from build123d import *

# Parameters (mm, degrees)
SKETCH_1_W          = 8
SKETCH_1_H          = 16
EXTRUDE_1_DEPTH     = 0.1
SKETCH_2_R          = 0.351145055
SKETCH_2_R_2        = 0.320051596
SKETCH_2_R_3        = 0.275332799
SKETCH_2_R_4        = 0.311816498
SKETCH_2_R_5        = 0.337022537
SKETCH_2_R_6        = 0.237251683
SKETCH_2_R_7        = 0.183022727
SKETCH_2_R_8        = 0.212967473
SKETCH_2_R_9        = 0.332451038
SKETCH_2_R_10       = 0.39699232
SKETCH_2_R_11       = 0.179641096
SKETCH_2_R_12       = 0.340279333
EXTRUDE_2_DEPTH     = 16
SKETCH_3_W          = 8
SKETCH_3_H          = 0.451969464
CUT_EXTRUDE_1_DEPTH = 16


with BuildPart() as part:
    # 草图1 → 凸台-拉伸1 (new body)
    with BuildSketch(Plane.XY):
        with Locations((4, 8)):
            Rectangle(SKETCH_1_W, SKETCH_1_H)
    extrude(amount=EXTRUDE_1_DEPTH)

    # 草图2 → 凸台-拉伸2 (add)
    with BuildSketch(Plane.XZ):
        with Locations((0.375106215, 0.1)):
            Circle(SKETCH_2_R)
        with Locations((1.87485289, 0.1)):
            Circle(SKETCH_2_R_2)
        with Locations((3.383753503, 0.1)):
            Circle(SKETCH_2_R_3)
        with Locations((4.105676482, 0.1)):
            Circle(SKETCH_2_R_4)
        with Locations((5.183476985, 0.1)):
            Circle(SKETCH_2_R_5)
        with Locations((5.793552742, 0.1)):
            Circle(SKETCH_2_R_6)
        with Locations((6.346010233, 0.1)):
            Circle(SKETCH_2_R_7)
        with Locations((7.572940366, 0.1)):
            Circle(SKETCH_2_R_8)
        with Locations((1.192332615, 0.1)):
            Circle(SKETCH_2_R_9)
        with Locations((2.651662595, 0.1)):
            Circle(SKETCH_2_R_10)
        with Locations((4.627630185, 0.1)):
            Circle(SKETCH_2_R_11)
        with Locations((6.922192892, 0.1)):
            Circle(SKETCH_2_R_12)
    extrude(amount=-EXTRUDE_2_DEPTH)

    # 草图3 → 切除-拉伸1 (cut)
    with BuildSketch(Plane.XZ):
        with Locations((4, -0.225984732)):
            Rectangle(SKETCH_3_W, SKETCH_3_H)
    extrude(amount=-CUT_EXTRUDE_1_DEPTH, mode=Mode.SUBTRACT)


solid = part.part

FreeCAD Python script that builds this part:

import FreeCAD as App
import Part
import Sketcher

V = App.Vector
Q = App.Units.Quantity

doc = App.newDocument("Part")
params = doc.addObject("Spreadsheet::Sheet", "Params")
for row, (alias, value) in enumerate([
    ("sketch1_width", "8 mm"),
    ("sketch1_height", "16 mm"),
    ("pad1_length", "0.1 mm"),
    ("pad2_length", "16 mm"),
    ("sketch3_width", "8 mm"),
    ("pocket1_length", "16 mm"),
], start=1):
    params.set(f"A{row}", alias)
    params.set(f"B{row}", "=" + value)
    params.setAlias(f"B{row}", alias)

body = doc.addObject("PartDesign::Body", "Body")

# Sketch on XY plane
sketch1 = body.newObject("Sketcher::SketchObject", "Sketch")
sketch1.AttachmentSupport = (doc.getObject("XY_Plane"), [""])
sketch1.MapMode = "FlatFace"
sketch1.addGeometry([
    Part.LineSegment(V(0, 16, 0), V(0, 0, 0)),
    Part.LineSegment(V(0, 0, 0), V(8, 0, 0)),
    Part.LineSegment(V(8, 0, 0), V(8, 16, 0)),
    Part.LineSegment(V(8, 16, 0), V(0, 16, 0)),
], False)
sketch1.addConstraint([
    Sketcher.Constraint("Coincident", 0, 2, 1, 1),
    Sketcher.Constraint("Coincident", 1, 2, 2, 1),
    Sketcher.Constraint("Coincident", 2, 2, 3, 1),
    Sketcher.Constraint("Coincident", 3, 2, 0, 1),
    Sketcher.Constraint("Vertical", 0),
    Sketcher.Constraint("Horizontal", 1),
    Sketcher.Constraint("Vertical", 2),
    Sketcher.Constraint("Horizontal", 3),
    Sketcher.Constraint("Coincident", 0, 2, -1, 1),
    Sketcher.Constraint("DistanceX", 1, 1, 1, 2, Q("8 mm")),
    Sketcher.Constraint("DistanceY", 0, 2, 0, 1, Q("16 mm")),
])
sketch1.setExpression("Constraints[9]", "Params.sketch1_width")
sketch1.setExpression("Constraints[10]", "Params.sketch1_height")
pad1 = body.newObject("PartDesign::Pad", "Pad")
pad1.Profile = sketch1
pad1.setExpression("Length", "Params.pad1_length")

# Sketch on XZ plane
sketch2 = body.newObject("Sketcher::SketchObject", "Sketch001")
sketch2.AttachmentSupport = (doc.getObject("XZ_Plane"), [""])
sketch2.MapMode = "FlatFace"
sketch2.addGeometry([
    Part.Circle(V(0.38, 0.1, 0), V(0, 0, 1), 0.35),  # 0
    Part.Circle(V(1.87, 0.1, 0), V(0, 0, 1), 0.32),  # 1
    Part.Circle(V(3.38, 0.1, 0), V(0, 0, 1), 0.28),  # 2
    Part.Circle(V(4.11, 0.1, 0), V(0, 0, 1), 0.31),  # 3
    Part.Circle(V(5.18, 0.1, 0), V(0, 0, 1), 0.34),  # 4
    Part.Circle(V(5.79, 0.1, 0), V(0, 0, 1), 0.24),  # 5
    Part.Circle(V(6.35, 0.1, 0), V(0, 0, 1), 0.18),  # 6
    Part.Circle(V(7.57, 0.1, 0), V(0, 0, 1), 0.21),  # 7
    Part.Circle(V(1.19, 0.1, 0), V(0, 0, 1), 0.33),  # 8
    Part.Circle(V(2.65, 0.1, 0), V(0, 0, 1), 0.4),  # 9
    Part.Circle(V(4.63, 0.1, 0), V(0, 0, 1), 0.18),  # 10
    Part.Circle(V(6.92, 0.1, 0), V(0, 0, 1), 0.34),  # 11
], False)
sketch2.addConstraint([
    Sketcher.Constraint("Horizontal", 0, 3, 1, 3),
    Sketcher.Constraint("Horizontal", 1, 3, 2, 3),
    Sketcher.Constraint("Horizontal", 2, 3, 3, 3),
    Sketcher.Constraint("Horizontal", 3, 3, 4, 3),
    Sketcher.Constraint("Horizontal", 4, 3, 5, 3),
    Sketcher.Constraint("Horizontal", 5, 3, 6, 3),
    Sketcher.Constraint("Horizontal", 6, 3, 7, 3),
    Sketcher.Constraint("Horizontal", 7, 3, 8, 3),
    Sketcher.Constraint("Horizontal", 8, 3, 9, 3),
    Sketcher.Constraint("Horizontal", 9, 3, 10, 3),
    Sketcher.Constraint("Horizontal", 10, 3, 11, 3),
    Sketcher.Constraint("DistanceY", -1, 1, 0, 3, Q("0.1 mm")),
    Sketcher.Constraint("Diameter", 0, Q("0.70229 mm")),
    Sketcher.Constraint("Diameter", 11, Q("0.680559 mm")),
    Sketcher.Constraint("Diameter", 1, Q("0.640103 mm")),
    Sketcher.Constraint("Diameter", 2, Q("0.550666 mm")),
    Sketcher.Constraint("Diameter", 3, Q("0.623633 mm")),
    Sketcher.Constraint("Diameter", 4, Q("0.674045 mm")),
    Sketcher.Constraint("Diameter", 5, Q("0.474503 mm")),
    Sketcher.Constraint("Diameter", 6, Q("0.366045 mm")),
    Sketcher.Constraint("Diameter", 7, Q("0.425935 mm")),
    Sketcher.Constraint("Diameter", 8, Q("0.664902 mm")),
    Sketcher.Constraint("Diameter", 9, Q("0.793985 mm")),
    Sketcher.Constraint("Diameter", 10, Q("0.359282 mm")),
    Sketcher.Constraint("DistanceX", 1, 3, 2, 3, Q("1.508901 mm")),
    Sketcher.Constraint("DistanceX", 3, 3, 4, 3, Q("1.077801 mm")),
    Sketcher.Constraint("DistanceX", 2, 3, 5, 3, Q("2.409799 mm")),
    Sketcher.Constraint("DistanceX", -1, 1, 6, 3, Q("6.34601 mm")),
    Sketcher.Constraint("DistanceX", -1, 1, 7, 3, Q("7.57294 mm")),
    Sketcher.Constraint("DistanceX", -1, 1, 10, 3, Q("4.62763 mm")),
    Sketcher.Constraint("DistanceX", 0, 3, 3, 3, Q("3.73057 mm")),
    Sketcher.Constraint("DistanceX", 8, 3, 1, 3, Q("0.68252 mm")),
    Sketcher.Constraint("DistanceX", 9, 3, 2, 3, Q("0.732091 mm")),
    Sketcher.Constraint("DistanceX", 5, 3, 11, 3, Q("1.12864 mm")),
    Sketcher.Constraint("DistanceX", -1, 1, 0, 3, Q("0.375106 mm")),
    Sketcher.Constraint("DistanceX", -1, 1, 1, 3, Q("1.874853 mm")),
])
pad2 = body.newObject("PartDesign::Pad", "Pad001")
pad2.Profile = sketch2
pad2.setExpression("Length", "Params.pad2_length")
pad2.Reversed = True

# Sketch on XZ plane
sketch3 = body.newObject("Sketcher::SketchObject", "Sketch002")
sketch3.AttachmentSupport = (doc.getObject("XZ_Plane"), [""])
sketch3.MapMode = "FlatFace"
sketch3.addGeometry([
    Part.LineSegment(V(0, 0, 0), V(0, -0.45, 0)),
    Part.LineSegment(V(0, -0.45, 0), V(8, -0.45, 0)),
    Part.LineSegment(V(8, -0.45, 0), V(8, 0, 0)),
    Part.LineSegment(V(8, 0, 0), V(0, 0, 0)),
], False)
sketch3.addConstraint([
    Sketcher.Constraint("Coincident", 0, 2, 1, 1),
    Sketcher.Constraint("Coincident", 1, 2, 2, 1),
    Sketcher.Constraint("Coincident", 2, 2, 3, 1),
    Sketcher.Constraint("Coincident", 3, 2, 0, 1),
    Sketcher.Constraint("Vertical", 0),
    Sketcher.Constraint("Horizontal", 1),
    Sketcher.Constraint("Vertical", 2),
    Sketcher.Constraint("Horizontal", 3),
    Sketcher.Constraint("Coincident", 3, 2, -1, 1),
    Sketcher.Constraint("DistanceX", 1, 1, 1, 2, Q("8 mm")),
    Sketcher.Constraint("DistanceY", 0, 2, 0, 1, Q("0.451969 mm")),
])
sketch3.setExpression("Constraints[9]", "Params.sketch3_width")
pocket1 = body.newObject("PartDesign::Pocket", "Pocket")
pocket1.Profile = sketch3
pocket1.setExpression("Length", "Params.pocket1_length")

doc.recompute()
